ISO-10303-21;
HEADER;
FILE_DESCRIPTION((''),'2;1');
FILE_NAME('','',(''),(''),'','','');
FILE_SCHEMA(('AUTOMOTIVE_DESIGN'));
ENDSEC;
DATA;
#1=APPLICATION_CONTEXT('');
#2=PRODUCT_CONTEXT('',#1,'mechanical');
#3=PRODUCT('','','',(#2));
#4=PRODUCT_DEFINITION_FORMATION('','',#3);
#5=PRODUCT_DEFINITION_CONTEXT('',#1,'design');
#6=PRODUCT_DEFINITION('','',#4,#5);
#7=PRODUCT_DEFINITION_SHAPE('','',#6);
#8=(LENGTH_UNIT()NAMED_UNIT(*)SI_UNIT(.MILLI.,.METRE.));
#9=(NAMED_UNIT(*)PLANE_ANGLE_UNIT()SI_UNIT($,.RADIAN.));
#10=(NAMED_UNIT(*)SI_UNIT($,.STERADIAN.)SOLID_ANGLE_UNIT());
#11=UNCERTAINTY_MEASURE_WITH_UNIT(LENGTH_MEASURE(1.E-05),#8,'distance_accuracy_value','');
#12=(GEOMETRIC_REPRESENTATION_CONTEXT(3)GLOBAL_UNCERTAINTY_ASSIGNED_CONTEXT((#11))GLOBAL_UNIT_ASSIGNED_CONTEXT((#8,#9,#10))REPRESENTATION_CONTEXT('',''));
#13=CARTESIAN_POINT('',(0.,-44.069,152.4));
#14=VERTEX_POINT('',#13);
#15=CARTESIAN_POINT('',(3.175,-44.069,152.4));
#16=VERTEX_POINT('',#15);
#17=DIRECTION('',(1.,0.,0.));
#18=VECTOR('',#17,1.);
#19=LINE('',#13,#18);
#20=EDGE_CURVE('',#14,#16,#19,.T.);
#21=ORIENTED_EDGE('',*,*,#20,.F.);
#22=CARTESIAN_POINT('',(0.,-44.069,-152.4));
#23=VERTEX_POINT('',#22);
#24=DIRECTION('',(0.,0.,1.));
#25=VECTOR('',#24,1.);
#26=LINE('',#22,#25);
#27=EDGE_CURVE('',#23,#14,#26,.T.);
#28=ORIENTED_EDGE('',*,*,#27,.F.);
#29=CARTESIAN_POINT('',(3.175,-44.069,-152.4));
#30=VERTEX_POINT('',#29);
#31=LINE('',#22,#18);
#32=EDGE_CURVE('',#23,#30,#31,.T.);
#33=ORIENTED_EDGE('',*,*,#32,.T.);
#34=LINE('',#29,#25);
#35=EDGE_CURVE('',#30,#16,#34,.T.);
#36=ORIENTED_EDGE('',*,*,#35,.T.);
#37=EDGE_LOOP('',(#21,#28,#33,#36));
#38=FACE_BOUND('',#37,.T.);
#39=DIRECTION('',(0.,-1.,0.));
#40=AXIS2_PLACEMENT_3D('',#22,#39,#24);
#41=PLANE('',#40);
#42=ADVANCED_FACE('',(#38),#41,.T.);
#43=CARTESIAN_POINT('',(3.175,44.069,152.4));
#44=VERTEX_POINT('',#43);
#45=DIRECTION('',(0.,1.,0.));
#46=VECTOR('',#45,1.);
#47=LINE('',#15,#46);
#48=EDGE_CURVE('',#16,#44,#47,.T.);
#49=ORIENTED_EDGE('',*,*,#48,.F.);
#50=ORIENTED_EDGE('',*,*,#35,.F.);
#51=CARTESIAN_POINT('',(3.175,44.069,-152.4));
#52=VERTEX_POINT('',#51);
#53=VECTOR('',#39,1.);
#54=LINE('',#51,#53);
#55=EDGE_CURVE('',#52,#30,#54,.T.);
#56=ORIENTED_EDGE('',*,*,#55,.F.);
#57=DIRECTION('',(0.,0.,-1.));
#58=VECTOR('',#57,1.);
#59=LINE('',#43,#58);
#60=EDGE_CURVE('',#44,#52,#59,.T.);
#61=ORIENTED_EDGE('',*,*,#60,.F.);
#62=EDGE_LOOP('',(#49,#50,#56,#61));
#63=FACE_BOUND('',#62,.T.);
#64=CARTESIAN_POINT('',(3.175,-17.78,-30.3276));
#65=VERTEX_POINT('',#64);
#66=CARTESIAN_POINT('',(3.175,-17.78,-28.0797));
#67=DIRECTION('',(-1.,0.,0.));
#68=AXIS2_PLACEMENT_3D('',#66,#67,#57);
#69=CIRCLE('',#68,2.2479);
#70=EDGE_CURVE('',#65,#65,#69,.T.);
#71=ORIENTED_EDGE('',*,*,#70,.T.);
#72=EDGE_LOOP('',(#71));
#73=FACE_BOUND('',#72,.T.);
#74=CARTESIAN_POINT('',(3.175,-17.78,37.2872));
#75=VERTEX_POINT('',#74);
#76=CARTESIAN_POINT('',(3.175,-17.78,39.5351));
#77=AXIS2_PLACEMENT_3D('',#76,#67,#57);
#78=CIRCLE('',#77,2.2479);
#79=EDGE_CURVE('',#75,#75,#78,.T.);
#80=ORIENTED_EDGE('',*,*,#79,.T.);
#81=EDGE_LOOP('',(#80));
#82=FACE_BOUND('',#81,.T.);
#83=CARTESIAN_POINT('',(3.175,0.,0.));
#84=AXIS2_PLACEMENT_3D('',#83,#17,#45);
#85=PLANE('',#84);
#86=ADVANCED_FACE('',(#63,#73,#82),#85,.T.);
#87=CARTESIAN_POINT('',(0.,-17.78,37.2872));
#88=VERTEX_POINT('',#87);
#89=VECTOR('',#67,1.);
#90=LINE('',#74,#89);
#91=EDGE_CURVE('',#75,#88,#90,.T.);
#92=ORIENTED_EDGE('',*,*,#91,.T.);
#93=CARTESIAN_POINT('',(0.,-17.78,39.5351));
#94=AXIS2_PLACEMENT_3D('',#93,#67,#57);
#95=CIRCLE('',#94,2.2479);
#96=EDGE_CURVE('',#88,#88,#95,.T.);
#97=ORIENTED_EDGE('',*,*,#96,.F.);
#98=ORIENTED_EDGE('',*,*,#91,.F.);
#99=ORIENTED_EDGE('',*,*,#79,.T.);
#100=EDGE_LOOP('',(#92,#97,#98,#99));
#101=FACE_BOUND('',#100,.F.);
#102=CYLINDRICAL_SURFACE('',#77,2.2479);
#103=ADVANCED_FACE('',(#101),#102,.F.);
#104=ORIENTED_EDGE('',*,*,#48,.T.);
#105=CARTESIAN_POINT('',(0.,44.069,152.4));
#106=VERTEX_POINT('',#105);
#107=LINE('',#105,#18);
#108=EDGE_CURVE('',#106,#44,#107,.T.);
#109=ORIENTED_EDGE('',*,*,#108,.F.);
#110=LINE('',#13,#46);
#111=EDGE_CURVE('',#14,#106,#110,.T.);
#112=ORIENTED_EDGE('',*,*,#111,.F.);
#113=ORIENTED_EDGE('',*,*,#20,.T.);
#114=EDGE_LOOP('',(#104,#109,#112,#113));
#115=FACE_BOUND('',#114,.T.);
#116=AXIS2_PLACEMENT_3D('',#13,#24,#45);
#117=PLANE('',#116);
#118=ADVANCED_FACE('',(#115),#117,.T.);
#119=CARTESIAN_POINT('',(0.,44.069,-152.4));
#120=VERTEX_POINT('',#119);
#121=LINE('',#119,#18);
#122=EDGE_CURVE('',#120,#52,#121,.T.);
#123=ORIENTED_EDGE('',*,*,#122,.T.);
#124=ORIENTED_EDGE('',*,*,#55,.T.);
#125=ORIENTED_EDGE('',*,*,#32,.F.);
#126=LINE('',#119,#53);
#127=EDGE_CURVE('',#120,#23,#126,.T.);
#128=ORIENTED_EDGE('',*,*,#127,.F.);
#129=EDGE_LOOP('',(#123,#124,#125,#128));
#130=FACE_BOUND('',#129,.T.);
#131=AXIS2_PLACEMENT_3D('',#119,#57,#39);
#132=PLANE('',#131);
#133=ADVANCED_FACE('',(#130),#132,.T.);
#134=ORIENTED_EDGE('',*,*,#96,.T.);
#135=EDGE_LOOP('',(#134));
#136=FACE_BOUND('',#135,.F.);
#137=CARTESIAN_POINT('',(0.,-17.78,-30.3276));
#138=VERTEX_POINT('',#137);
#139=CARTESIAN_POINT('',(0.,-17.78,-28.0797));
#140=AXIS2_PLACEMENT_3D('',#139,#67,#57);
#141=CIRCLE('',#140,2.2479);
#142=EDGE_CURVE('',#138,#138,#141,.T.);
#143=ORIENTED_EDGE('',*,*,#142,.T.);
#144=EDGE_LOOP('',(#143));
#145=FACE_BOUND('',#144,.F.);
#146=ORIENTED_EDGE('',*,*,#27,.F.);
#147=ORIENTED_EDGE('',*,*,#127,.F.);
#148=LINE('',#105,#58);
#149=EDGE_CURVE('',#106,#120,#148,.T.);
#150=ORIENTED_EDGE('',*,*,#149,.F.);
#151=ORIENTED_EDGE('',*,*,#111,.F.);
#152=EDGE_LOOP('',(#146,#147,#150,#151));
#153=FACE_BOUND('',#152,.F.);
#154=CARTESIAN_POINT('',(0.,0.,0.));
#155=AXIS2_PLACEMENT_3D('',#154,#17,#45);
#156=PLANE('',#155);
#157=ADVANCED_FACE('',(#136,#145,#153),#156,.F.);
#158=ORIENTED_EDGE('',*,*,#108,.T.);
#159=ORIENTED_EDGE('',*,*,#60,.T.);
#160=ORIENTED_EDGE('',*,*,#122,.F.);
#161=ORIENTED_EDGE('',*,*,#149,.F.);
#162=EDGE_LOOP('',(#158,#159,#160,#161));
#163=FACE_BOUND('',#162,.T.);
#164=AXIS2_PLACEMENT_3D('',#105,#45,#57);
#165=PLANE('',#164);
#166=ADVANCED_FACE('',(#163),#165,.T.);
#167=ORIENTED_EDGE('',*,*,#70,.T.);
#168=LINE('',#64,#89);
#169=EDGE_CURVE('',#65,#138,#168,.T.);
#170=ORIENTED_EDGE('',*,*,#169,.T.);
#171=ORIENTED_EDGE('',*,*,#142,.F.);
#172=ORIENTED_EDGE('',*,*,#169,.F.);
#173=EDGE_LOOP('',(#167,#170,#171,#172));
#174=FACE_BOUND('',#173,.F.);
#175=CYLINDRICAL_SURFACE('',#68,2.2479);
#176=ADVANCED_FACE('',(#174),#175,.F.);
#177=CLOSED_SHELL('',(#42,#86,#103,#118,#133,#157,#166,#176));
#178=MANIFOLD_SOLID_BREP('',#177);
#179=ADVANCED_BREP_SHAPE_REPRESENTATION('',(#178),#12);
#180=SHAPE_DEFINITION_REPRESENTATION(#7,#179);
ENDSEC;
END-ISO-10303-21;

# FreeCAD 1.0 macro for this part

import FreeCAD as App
import Part
import Sketcher
from FreeCAD import Vector
Q = App.Units.Quantity

doc = App.newDocument("Part")
body = doc.addObject("PartDesign::Body", "Body")

sketch1 = body.newObject("Sketcher::SketchObject", "Sketch")
sketch1.AttachmentSupport = (doc.getObject("YZ_Plane"), [""])
sketch1.MapMode = "FlatFace"
sketch1.addGeometry([
    Part.LineSegment(Vector(44.069, 152.4, 0), Vector(-44.069, 152.4, 0)),
    Part.LineSegment(Vector(-44.069, 152.4, 0), Vector(-44.069, -152.4, 0)),
    Part.LineSegment(Vector(-44.069, -152.4, 0), Vector(44.069, -152.4, 0)),
    Part.LineSegment(Vector(44.069, -152.4, 0), Vector(44.069, 152.4, 0)),
], False)
sketch1.addConstraint([
    Sketcher.Constraint("Coincident", 0, 2, 1, 1),
    Sketcher.Constraint("Coincident", 1, 2, 2, 1),
    Sketcher.Constraint("Coincident", 2, 2, 3, 1),
    Sketcher.Constraint("Coincident", 3, 2, 0, 1),
    Sketcher.Constraint("Horizontal", 0),
    Sketcher.Constraint("Vertical", 1),
    Sketcher.Constraint("Horizontal", 2),
    Sketcher.Constraint("Vertical", 3),
    Sketcher.Constraint("Symmetric", 0, 2, 2, 2, -1, 1),
    Sketcher.Constraint("DistanceY", 1, 2, 1, 1, Q("12 in")),
    Sketcher.Constraint("DistanceX", 0, 2, 0, 1, Q("3.47 in")),
])
pad1 = body.newObject("PartDesign::Pad", "Pad")
pad1.Profile = sketch1
pad1.Length = Q("0.125 in")

sketch2 = body.newObject("Sketcher::SketchObject", "Sketch001")
sketch2.AttachmentSupport = (doc.getObject("YZ_Plane"), [""])
sketch2.MapMode = "FlatFace"
sketch2.AttachmentOffset = App.Placement(Vector(0, 0, 0.125 * 25.4), App.Rotation())
sketch2.addGeometry([
    Part.Circle(Vector(-17.78, 39.5351, 0), Vector(0, 0, 1), 2.2479),
    Part.Circle(Vector(-17.78, -28.0797, 0), Vector(0, 0, 1), 2.2479),
], False)
sketch2.addConstraint([
    Sketcher.Constraint("Equal", 0, 1),
    Sketcher.Constraint("Vertical", 0, 3, 1, 3),
    Sketcher.Constraint("Diameter", 0, Q("0.177 in")),
    Sketcher.Constraint("DistanceX", 0, 3, -1, 1, Q("0.7 in")),
    Sketcher.Constraint("DistanceY", 1, 3, 0, 3, Q("2.662 in")),
    Sketcher.Constraint("DistanceY", -1, 1, 0, 3, Q("1.5565 in")),
])
doc.recompute()
hole = body.newObject("PartDesign::Hole", "Hole")
hole.Profile = sketch2
hole.ThreadType = "None"
hole.Diameter = Q("0.177 in")
hole.DepthType = "ThroughAll"

doc.recompute()
